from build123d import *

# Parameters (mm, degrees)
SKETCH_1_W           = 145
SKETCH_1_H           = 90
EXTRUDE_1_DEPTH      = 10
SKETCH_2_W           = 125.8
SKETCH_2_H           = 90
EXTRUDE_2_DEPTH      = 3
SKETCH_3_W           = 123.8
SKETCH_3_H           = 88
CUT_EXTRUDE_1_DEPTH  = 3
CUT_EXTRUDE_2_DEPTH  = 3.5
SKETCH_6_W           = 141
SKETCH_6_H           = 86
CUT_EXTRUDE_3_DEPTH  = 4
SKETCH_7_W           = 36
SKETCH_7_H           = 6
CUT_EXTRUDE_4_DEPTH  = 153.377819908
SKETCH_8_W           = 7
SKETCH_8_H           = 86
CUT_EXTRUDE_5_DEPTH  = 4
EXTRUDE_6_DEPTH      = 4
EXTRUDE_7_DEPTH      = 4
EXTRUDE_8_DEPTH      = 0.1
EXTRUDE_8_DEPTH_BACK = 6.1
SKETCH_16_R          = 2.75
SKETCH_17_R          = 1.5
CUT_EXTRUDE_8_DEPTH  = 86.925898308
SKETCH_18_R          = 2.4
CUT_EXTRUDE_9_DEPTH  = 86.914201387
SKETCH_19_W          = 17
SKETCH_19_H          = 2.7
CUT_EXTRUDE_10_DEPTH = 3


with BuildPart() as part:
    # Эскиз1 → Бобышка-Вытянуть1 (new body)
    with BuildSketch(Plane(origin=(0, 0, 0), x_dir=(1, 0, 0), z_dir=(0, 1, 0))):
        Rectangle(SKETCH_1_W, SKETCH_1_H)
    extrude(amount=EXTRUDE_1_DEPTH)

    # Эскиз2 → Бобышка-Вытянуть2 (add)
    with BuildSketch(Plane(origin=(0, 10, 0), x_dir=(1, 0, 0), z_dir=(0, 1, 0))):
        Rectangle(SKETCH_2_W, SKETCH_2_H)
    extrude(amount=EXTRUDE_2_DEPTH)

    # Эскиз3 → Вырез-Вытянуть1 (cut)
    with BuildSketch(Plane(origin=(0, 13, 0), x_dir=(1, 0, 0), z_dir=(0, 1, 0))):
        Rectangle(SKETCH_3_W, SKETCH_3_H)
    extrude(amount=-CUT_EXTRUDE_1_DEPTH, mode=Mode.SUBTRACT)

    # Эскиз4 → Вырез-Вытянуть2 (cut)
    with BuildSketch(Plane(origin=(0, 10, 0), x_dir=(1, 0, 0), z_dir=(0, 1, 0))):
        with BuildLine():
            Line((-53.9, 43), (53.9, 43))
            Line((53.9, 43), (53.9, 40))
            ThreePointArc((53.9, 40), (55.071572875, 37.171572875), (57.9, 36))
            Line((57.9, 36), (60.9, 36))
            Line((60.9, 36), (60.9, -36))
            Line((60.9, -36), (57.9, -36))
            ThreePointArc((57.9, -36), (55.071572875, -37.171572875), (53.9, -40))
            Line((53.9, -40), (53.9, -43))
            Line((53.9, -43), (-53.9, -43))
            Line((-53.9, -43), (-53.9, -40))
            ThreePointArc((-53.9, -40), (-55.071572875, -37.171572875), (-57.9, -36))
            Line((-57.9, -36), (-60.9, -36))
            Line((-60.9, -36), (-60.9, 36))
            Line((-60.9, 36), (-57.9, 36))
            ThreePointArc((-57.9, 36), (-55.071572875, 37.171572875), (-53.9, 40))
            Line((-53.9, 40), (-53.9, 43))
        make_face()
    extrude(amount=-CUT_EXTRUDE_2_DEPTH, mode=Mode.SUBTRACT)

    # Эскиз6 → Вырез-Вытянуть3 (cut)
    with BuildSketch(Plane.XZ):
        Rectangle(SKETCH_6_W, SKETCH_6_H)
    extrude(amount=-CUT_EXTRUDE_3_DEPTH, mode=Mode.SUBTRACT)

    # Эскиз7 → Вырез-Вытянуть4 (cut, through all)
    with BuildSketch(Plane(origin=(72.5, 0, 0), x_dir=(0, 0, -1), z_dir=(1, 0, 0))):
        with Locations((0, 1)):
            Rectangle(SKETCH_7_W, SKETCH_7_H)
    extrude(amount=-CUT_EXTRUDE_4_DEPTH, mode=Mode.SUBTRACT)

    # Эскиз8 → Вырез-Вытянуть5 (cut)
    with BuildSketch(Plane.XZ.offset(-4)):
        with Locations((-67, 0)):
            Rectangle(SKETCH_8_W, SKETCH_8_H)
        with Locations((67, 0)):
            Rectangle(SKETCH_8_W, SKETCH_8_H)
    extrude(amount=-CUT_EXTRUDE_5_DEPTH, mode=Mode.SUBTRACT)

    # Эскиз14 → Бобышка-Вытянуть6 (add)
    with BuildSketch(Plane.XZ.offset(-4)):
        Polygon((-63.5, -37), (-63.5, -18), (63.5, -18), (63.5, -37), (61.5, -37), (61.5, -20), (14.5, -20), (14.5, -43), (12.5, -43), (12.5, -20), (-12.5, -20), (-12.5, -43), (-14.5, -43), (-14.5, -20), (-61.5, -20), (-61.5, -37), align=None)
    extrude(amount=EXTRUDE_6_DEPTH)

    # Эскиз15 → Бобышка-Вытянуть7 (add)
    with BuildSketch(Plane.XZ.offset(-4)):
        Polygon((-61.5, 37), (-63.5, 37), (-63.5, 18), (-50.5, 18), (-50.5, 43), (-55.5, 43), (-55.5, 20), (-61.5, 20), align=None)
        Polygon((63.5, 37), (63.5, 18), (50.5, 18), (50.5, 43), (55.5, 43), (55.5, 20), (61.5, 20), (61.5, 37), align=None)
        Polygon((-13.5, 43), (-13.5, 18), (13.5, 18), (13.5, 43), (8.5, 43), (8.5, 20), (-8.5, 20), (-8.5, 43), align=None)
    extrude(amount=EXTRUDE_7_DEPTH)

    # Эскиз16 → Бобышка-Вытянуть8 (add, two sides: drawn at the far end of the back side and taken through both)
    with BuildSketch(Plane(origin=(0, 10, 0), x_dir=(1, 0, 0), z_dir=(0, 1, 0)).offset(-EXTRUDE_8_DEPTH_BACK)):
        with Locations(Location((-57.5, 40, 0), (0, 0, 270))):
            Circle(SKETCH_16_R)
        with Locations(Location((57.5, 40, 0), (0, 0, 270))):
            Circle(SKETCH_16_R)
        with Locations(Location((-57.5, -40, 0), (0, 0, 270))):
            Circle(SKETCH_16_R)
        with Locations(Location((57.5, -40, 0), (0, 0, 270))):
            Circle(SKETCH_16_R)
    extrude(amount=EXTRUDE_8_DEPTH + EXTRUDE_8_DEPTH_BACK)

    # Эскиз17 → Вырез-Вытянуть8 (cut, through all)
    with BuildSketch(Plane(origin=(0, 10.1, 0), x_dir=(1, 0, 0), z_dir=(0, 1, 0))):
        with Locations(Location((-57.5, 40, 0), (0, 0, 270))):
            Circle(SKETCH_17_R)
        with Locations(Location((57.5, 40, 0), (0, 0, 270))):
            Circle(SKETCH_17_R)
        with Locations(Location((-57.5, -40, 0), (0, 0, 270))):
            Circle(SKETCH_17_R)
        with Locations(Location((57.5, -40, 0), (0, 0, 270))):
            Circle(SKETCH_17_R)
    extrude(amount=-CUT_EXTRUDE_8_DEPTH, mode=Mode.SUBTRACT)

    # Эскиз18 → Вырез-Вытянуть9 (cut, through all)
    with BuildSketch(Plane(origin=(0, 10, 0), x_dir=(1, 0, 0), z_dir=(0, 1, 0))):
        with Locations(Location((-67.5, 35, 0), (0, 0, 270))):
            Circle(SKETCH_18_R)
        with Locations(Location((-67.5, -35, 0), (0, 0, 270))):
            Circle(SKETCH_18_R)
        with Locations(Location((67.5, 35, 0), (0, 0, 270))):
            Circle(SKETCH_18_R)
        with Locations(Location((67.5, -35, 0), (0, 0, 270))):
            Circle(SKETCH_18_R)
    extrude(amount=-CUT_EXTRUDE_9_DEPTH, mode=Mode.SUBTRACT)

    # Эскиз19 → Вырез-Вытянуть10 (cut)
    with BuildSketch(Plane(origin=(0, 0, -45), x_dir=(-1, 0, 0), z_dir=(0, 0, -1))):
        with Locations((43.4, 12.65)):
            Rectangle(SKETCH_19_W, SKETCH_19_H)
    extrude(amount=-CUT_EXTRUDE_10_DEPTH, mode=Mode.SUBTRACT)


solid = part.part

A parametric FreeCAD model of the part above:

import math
import FreeCAD as App
import Part
import Sketcher
Q = App.Units.Quantity


def add_polygon(sketch, points):
    """Adds a closed chain of lines whose ends are joined by coincident constraints."""
    first, n = sketch.GeometryCount, len(points)
    for a, b in zip(points, points[1:] + points[:1]):
        sketch.addGeometry(Part.LineSegment(App.Vector(*a, 0), App.Vector(*b, 0)), False)
    for i in range(n):
        sketch.addConstraint(Sketcher.Constraint("Coincident", first + i, 2, first + (i + 1) % n, 1))

doc = App.newDocument("Part")
body = doc.addObject("PartDesign::Body", "Body")

sketch1 = body.newObject("Sketcher::SketchObject", "Sketch")
sketch1.AttachmentSupport = (doc.getObject("XZ_Plane"), [""])
sketch1.MapMode = "FlatFace"
add_polygon(sketch1, [(-72.5, -45), (-72.5, 45), (72.5, 45), (72.5, -45)])
sketch1.addConstraint([
    Sketcher.Constraint("Vertical", 0),
    Sketcher.Constraint("Horizontal", 1),
    Sketcher.Constraint("Vertical", 2),
    Sketcher.Constraint("Horizontal", 3),
    Sketcher.Constraint("Symmetric", 0, 2, 2, 2, -1, 1),
    Sketcher.Constraint("DistanceX", 1, 1, 1, 2, Q("145 mm")),
    Sketcher.Constraint("DistanceY", 0, 1, 0, 2, Q("90 mm")),
])
pad1 = body.newObject("PartDesign::Pad", "Pad")
pad1.Profile = sketch1
pad1.Length = 10
pad1.Reversed = True

sketch2 = body.newObject("Sketcher::SketchObject", "Sketch001")
sketch2.AttachmentSupport = (doc.getObject("XZ_Plane"), [""])
sketch2.MapMode = "FlatFace"
sketch2.AttachmentOffset = App.Placement(App.Vector(0, 0, -10), App.Rotation())
add_polygon(sketch2, [(-62.9, -45), (-62.9, 45), (62.9, 45), (62.9, -45)])
sketch2.addConstraint([
    Sketcher.Constraint("Vertical", 0),
    Sketcher.Constraint("Horizontal", 1),
    Sketcher.Constraint("Vertical", 2),
    Sketcher.Constraint("Horizontal", 3),
    Sketcher.Constraint("Symmetric", 0, 2, 2, 2, -1, 1),
    Sketcher.Constraint("DistanceY", 0, 1, 0, 2, Q("90 mm")),
    Sketcher.Constraint("DistanceX", 1, 1, 1, 2, Q("125.8 mm")),
])
pad2 = body.newObject("PartDesign::Pad", "Pad001")
pad2.Profile = sketch2
pad2.Length = 3
pad2.Reversed = True

sketch3 = body.newObject("Sketcher::SketchObject", "Sketch002")
sketch3.AttachmentSupport = (doc.getObject("XZ_Plane"), [""])
sketch3.MapMode = "FlatFace"
sketch3.AttachmentOffset = App.Placement(App.Vector(0, 0, -13), App.Rotation())
add_polygon(sketch3, [(-61.9, -44), (-61.9, 44), (61.9, 44), (61.9, -44)])
sketch3.addConstraint([
    Sketcher.Constraint("Vertical", 0),
    Sketcher.Constraint("Horizontal", 1),
    Sketcher.Constraint("Vertical", 2),
    Sketcher.Constraint("Horizontal", 3),
    Sketcher.Constraint("Symmetric", 0, 2, 2, 2, -1, 1),
    Sketcher.Constraint("DistanceY", 0, 1, 0, 2, Q("88 mm")),
    Sketcher.Constraint("DistanceX", 1, 1, 1, 2, Q("123.8 mm")),
])
pocket1 = body.newObject("PartDesign::Pocket", "Pocket")
pocket1.Profile = sketch3
pocket1.Length = 3
pocket1.Reversed = True

sketch4 = body.newObject("Sketcher::SketchObject", "Sketch003")
sketch4.AttachmentSupport = (doc.getObject("XZ_Plane"), [""])
sketch4.MapMode = "FlatFace"
sketch4.AttachmentOffset = App.Placement(App.Vector(0, 0, -10), App.Rotation())
sketch4.addGeometry([
    Part.LineSegment(App.Vector(53.9, -43, 0), App.Vector(-53.9, -43, 0)),
    Part.LineSegment(App.Vector(-53.9, -43, 0), App.Vector(-53.9, -40, 0)),
    Part.ArcOfCircle(Part.Circle(App.Vector(-57.9, -40, 0), App.Vector(0, 0, 1), 4), math.radians(0), math.radians(90)),
    Part.LineSegment(App.Vector(-57.9, -36, 0), App.Vector(-60.9, -36, 0)),
    Part.LineSegment(App.Vector(-60.9, -36, 0), App.Vector(-60.9, 36, 0)),
    Part.LineSegment(App.Vector(-60.9, 36, 0), App.Vector(-57.9, 36, 0)),
    Part.ArcOfCircle(Part.Circle(App.Vector(-57.9, 40, 0), App.Vector(0, 0, 1), 4), math.radians(-90), math.radians(0)),
    Part.LineSegment(App.Vector(-53.9, 40, 0), App.Vector(-53.9, 43, 0)),
    Part.LineSegment(App.Vector(-53.9, 43, 0), App.Vector(53.9, 43, 0)),
    Part.LineSegment(App.Vector(53.9, 43, 0), App.Vector(53.9, 40, 0)),
    Part.ArcOfCircle(Part.Circle(App.Vector(57.9, 40, 0), App.Vector(0, 0, 1), 4), math.radians(180), math.radians(270)),
    Part.LineSegment(App.Vector(57.9, 36, 0), App.Vector(60.9, 36, 0)),
    Part.LineSegment(App.Vector(60.9, 36, 0), App.Vector(60.9, -36, 0)),
    Part.LineSegment(App.Vector(60.9, -36, 0), App.Vector(57.9, -36, 0)),
    Part.ArcOfCircle(Part.Circle(App.Vector(57.9, -40, 0), App.Vector(0, 0, 1), 4), math.radians(90), math.radians(180)),
    Part.LineSegment(App.Vector(53.9, -40, 0), App.Vector(53.9, -43, 0)),
], False)
sketch4.addConstraint([
    Sketcher.Constraint("Coincident", 0, 2, 1, 1),
    Sketcher.Constraint("Tangent", 1, 2, 2, 1),
    Sketcher.Constraint("Tangent", 2, 2, 3, 1),
    Sketcher.Constraint("Coincident", 3, 2, 4, 1),
    Sketcher.Constraint("Coincident", 4, 2, 5, 1),
    Sketcher.Constraint("Tangent", 5, 2, 6, 1),
    Sketcher.Constraint("Tangent", 6, 2, 7, 1),
    Sketcher.Constraint("Coincident", 7, 2, 8, 1),
    Sketcher.Constraint("Coincident", 8, 2, 9, 1),
    Sketcher.Constraint("Tangent", 9, 2, 10, 1),
    Sketcher.Constraint("Tangent", 10, 2, 11, 1),
    Sketcher.Constraint("Coincident", 11, 2, 12, 1),
    Sketcher.Constraint("Coincident", 12, 2, 13, 1),
    Sketcher.Constraint("Tangent", 13, 2, 14, 1),
    Sketcher.Constraint("Tangent", 14, 2, 15, 1),
    Sketcher.Constraint("Coincident", 15, 2, 0, 1),
    Sketcher.Constraint("Horizontal", 0),
    Sketcher.Constraint("Vertical", 1),
    Sketcher.Constraint("Horizontal", 3),
    Sketcher.Constraint("Vertical", 4),
    Sketcher.Constraint("Horizontal", 5),
    Sketcher.Constraint("Vertical", 7),
    Sketcher.Constraint("Horizontal", 8),
    Sketcher.Constraint("Vertical", 9),
    Sketcher.Constraint("Horizontal", 11),
    Sketcher.Constraint("Vertical", 12),
    Sketcher.Constraint("Horizontal", 13),
    Sketcher.Constraint("Vertical", 15),
    Sketcher.Constraint("Equal", 2, 6),
    Sketcher.Constraint("Equal", 6, 10),
    Sketcher.Constraint("Equal", 10, 14),
    Sketcher.Constraint("Symmetric", 2, 3, 10, 3, -1, 1),
    Sketcher.Constraint("Symmetric", 6, 3, 14, 3, -1, 1),
    Sketcher.Constraint("Symmetric", 6, 3, 10, 3, -2),
    Sketcher.Constraint("Equal", 5, 11),
    Sketcher.Constraint("Equal", 13, 1),
    Sketcher.Constraint("Equal", 1, 7),
    Sketcher.Constraint("Radius", 2, Q("4 mm")),
    Sketcher.Constraint("DistanceX", 3, 2, 3, 1, Q("3 mm")),
    Sketcher.Constraint("DistanceY", 4, 1, 4, 2, Q("72 mm")),
    Sketcher.Constraint("DistanceX", 0, 2, 0, 1, Q("107.8 mm")),
])
pocket2 = body.newObject("PartDesign::Pocket", "Pocket001")
pocket2.Profile = sketch4
pocket2.Length = 3.5
pocket2.Reversed = True

sketch5 = body.newObject("Sketcher::SketchObject", "Sketch004")
sketch5.AttachmentSupport = (doc.getObject("XZ_Plane"), [""])
sketch5.MapMode = "FlatFace"
add_polygon(sketch5, [(-70.5, 43), (-70.5, -43), (70.5, -43), (70.5, 43)])
sketch5.addConstraint([
    Sketcher.Constraint("Vertical", 0),
    Sketcher.Constraint("Horizontal", 1),
    Sketcher.Constraint("Vertical", 2),
    Sketcher.Constraint("Horizontal", 3),
    Sketcher.Constraint("Symmetric", 0, 2, 2, 2, -1, 1),
    Sketcher.Constraint("DistanceX", 1, 1, 1, 2, Q("141 mm")),
    Sketcher.Constraint("DistanceY", 0, 2, 0, 1, Q("86 mm")),
])
pocket3 = body.newObject("PartDesign::Pocket", "Pocket002")
pocket3.Profile = sketch5
pocket3.Length = 4

sketch6 = body.newObject("Sketcher::SketchObject", "Sketch005")
sketch6.AttachmentSupport = (doc.getObject("YZ_Plane"), [""])
sketch6.MapMode = "FlatFace"
sketch6.AttachmentOffset = App.Placement(App.Vector(0, 0, 72.5), App.Rotation())
add_polygon(sketch6, [(4, 18), (-2, 18), (-2, -18), (4, -18)])
sketch6.addConstraint([
    Sketcher.Constraint("Horizontal", 0),
    Sketcher.Constraint("Vertical", 1),
    Sketcher.Constraint("Horizontal", 2),
    Sketcher.Constraint("Vertical", 3),
    Sketcher.Constraint("DistanceX", 0, 2, 0, 1, Q("6 mm")),
    Sketcher.Constraint("DistanceY", 1, 2, 1, 1, Q("36 mm")),
    Sketcher.Constraint("DistanceX", 0, 2, -1, 1, Q("2 mm")),
    Sketcher.Constraint("DistanceY", -1, 1, 0, 2, Q("18 mm")),
])
pocket4 = body.newObject("PartDesign::Pocket", "Pocket003")
pocket4.Profile = sketch6
pocket4.Type = "ThroughAll"

sketch7 = body.newObject("Sketcher::SketchObject", "Sketch006")
sketch7.AttachmentSupport = (doc.getObject("XZ_Plane"), [""])
sketch7.MapMode = "FlatFace"
sketch7.AttachmentOffset = App.Placement(App.Vector(0, 0, -4), App.Rotation())
add_polygon(sketch7, [(-70.5, 43), (-70.5, -43), (-63.5, -43), (-63.5, 43)])
add_polygon(sketch7, [(63.5, 43), (63.5, -43), (70.5, -43), (70.5, 43)])
sketch7.addConstraint([
    Sketcher.Constraint("Vertical", 0),
    Sketcher.Constraint("Horizontal", 1),
    Sketcher.Constraint("Vertical", 2),
    Sketcher.Constraint("Horizontal", 3),
    Sketcher.Constraint("Vertical", 4),
    Sketcher.Constraint("Horizontal", 5),
    Sketcher.Constraint("Vertical", 6),
    Sketcher.Constraint("Horizontal", 7),
    Sketcher.Constraint("Symmetric", 2, 2, 4, 2, -1, 1),
    Sketcher.Constraint("Symmetric", 0, 2, 6, 2, -1, 1),
    Sketcher.Constraint("Horizontal", 1, 2, 4, 2),
    Sketcher.Constraint("DistanceX", 1, 1, 1, 2, Q("7 mm")),
    Sketcher.Constraint("DistanceY", 0, 2, 0, 1, Q("86 mm")),
    Sketcher.Constraint("DistanceX", 1, 2, 4, 2, Q("127 mm")),
])
pocket5 = body.newObject("PartDesign::Pocket", "Pocket004")
pocket5.Profile = sketch7
pocket5.Length = 4

sketch8 = body.newObject("Sketcher::SketchObject", "Sketch007")
sketch8.AttachmentSupport = (doc.getObject("XZ_Plane"), [""])
sketch8.MapMode = "FlatFace"
sketch8.AttachmentOffset = App.Placement(App.Vector(0, 0, -4), App.Rotation())
add_polygon(sketch8, [(-63.5, -18), (-63.5, -37), (-61.5, -37), (-61.5, -20), (-14.5, -20), (-14.5, -43), (-12.5, -43), (-12.5, -20), (12.5, -20), (12.5, -43), (14.5, -43), (14.5, -20), (61.5, -20), (61.5, -37), (63.5, -37), (63.5, -18)])
sketch8.addConstraint([
    Sketcher.Constraint("Vertical", 0),
    Sketcher.Constraint("Horizontal", 1),
    Sketcher.Constraint("Vertical", 2),
    Sketcher.Constraint("Horizontal", 3),
    Sketcher.Constraint("Vertical", 4),
    Sketcher.Constraint("Horizontal", 5),
    Sketcher.Constraint("Vertical", 6),
    Sketcher.Constraint("Horizontal", 7),
    Sketcher.Constraint("Vertical", 8),
    Sketcher.Constraint("Horizontal", 9),
    Sketcher.Constraint("Vertical", 10),
    Sketcher.Constraint("Horizontal", 11),
    Sketcher.Constraint("Vertical", 12),
    Sketcher.Constraint("Horizontal", 13),
    Sketcher.Constraint("Vertical", 14),
    Sketcher.Constraint("Horizontal", 15),
    Sketcher.Constraint("Symmetric", 5, 2, 8, 2, -2),
    Sketcher.Constraint("Symmetric", 3, 2, 10, 2, -2),
    Sketcher.Constraint("Symmetric", 1, 2, 12, 2, -2),
    Sketcher.Constraint("Horizontal", 3, 2, 6, 2),
    Sketcher.Constraint("Equal", 1, 5),
    Sketcher.Constraint("Equal", 9, 13),
    Sketcher.Constraint("DistanceX", 1, 1, 1, 2, Q("2 mm")),
    Sketcher.Constraint("DistanceX", 3, 1, 3, 2, Q("47 mm")),
    Sketcher.Constraint("DistanceX", 7, 1, 7, 2, Q("25 mm")),
    Sketcher.Constraint("DistanceY", 0, 2, 0, 1, Q("19 mm")),
    Sketcher.Constraint("DistanceY", 2, 1, 2, 2, Q("17 mm")),
    Sketcher.Constraint("DistanceY", 4, 2, 4, 1, Q("23 mm")),
    Sketcher.Constraint("DistanceY", 0, 2, -1, 1, Q("37 mm")),
])
pad3 = body.newObject("PartDesign::Pad", "Pad002")
pad3.Profile = sketch8
pad3.Length = 4

sketch9 = body.newObject("Sketcher::SketchObject", "Sketch008")
sketch9.AttachmentSupport = (doc.getObject("XZ_Plane"), [""])
sketch9.MapMode = "FlatFace"
sketch9.AttachmentOffset = App.Placement(App.Vector(0, 0, -4), App.Rotation())
add_polygon(sketch9, [(-61.5, 37), (-63.5, 37), (-63.5, 18), (-50.5, 18), (-50.5, 43), (-55.5, 43), (-55.5, 20), (-61.5, 20)])
add_polygon(sketch9, [(63.5, 18), (63.5, 37), (61.5, 37), (61.5, 20), (55.5, 20), (55.5, 43), (50.5, 43), (50.5, 18)])
add_polygon(sketch9, [(-13.5, 43), (-13.5, 18), (13.5, 18), (13.5, 43), (8.5, 43), (8.5, 20), (-8.5, 20), (-8.5, 43)])
sketch9.addConstraint([
    Sketcher.Constraint("Horizontal", 0),
    Sketcher.Constraint("Vertical", 1),
    Sketcher.Constraint("Horizontal", 2),
    Sketcher.Constraint("Vertical", 3),
    Sketcher.Constraint("Horizontal", 4),
    Sketcher.Constraint("Vertical", 5),
    Sketcher.Constraint("Horizontal", 6),
    Sketcher.Constraint("Vertical", 7),
    Sketcher.Constraint("Vertical", 8),
    Sketcher.Constraint("Horizontal", 9),
    Sketcher.Constraint("Vertical", 10),
    Sketcher.Constraint("Horizontal", 11),
    Sketcher.Constraint("Vertical", 12),
    Sketcher.Constraint("Horizontal", 13),
    Sketcher.Constraint("Vertical", 14),
    Sketcher.Constraint("Horizontal", 15),
    Sketcher.Constraint("Vertical", 16),
    Sketcher.Constraint("Horizontal", 17),
    Sketcher.Constraint("Vertical", 18),
    Sketcher.Constraint("Horizontal", 19),
    Sketcher.Constraint("Vertical", 20),
    Sketcher.Constraint("Horizontal", 21),
    Sketcher.Constraint("Vertical", 22),
    Sketcher.Constraint("Horizontal", 23),
    Sketcher.Constraint("Symmetric", 0, 2, 8, 2, -2),
    Sketcher.Constraint("Symmetric", 6, 2, 10, 2, -2),
    Sketcher.Constraint("Symmetric", 4, 2, 12, 2, -2),
    Sketcher.Constraint("Symmetric", 2, 2, 14, 2, -2),
    Sketcher.Constraint("Symmetric", 19, 2, 22, 2, -2),
    Sketcher.Constraint("Horizontal", 15, 2, 16, 2),
    Sketcher.Constraint("Horizontal", 13, 2, 18, 2),
    Sketcher.Constraint("Horizontal", 11, 2, 20, 2),
    Sketcher.Constraint("Equal", 13, 19),
    Sketcher.Constraint("Equal", 19, 23),
    Sketcher.Constraint("Equal", 21, 7),
    Sketcher.Constraint("DistanceX", 0, 2, 0, 1, Q("2 mm")),
    Sketcher.Constraint("DistanceX", 2, 1, 2, 2, Q("13 mm")),
    Sketcher.Constraint("DistanceX", 4, 2, 4, 1, Q("5 mm")),
    Sketcher.Constraint("DistanceX", 17, 1, 17, 2, Q("27 mm")),
    Sketcher.Constraint("DistanceY", 1, 2, 1, 1, Q("19 mm")),
    Sketcher.Constraint("DistanceY", 3, 1, 3, 2, Q("25 mm")),
    Sketcher.Constraint("DistanceY", -1, 1, 0, 2, Q("37 mm")),
    Sketcher.Constraint("DistanceX", 3, 2, 8, 2, Q("114 mm")),
])
pad4 = body.newObject("PartDesign::Pad", "Pad003")
pad4.Profile = sketch9
pad4.Length = 4

sketch10 = body.newObject("Sketcher::SketchObject", "Sketch009")
sketch10.AttachmentSupport = (doc.getObject("XZ_Plane"), [""])
sketch10.MapMode = "FlatFace"
sketch10.AttachmentOffset = App.Placement(App.Vector(0, 0, -10), App.Rotation())
sketch10.addGeometry([
    Part.Circle(App.Vector(-57.5, -40, 0), App.Vector(0, 0, 1), 2.75),
    Part.Circle(App.Vector(57.5, -40, 0), App.Vector(0, 0, 1), 2.75),
    Part.Circle(App.Vector(-57.5, 40, 0), App.Vector(0, 0, 1), 2.75),
    Part.Circle(App.Vector(57.5, 40, 0), App.Vector(0, 0, 1), 2.75),
], False)
sketch10.addConstraint([
    Sketcher.Constraint("Equal", 0, 1),
    Sketcher.Constraint("Equal", 1, 2),
    Sketcher.Constraint("Equal", 2, 3),
    Sketcher.Constraint("Symmetric", 1, 3, 2, 3, -1, 1),
    Sketcher.Constraint("Symmetric", 0, 3, 3, 3, -1, 1),
    Sketcher.Constraint("Symmetric", 0, 3, 1, 3, -2),
    Sketcher.Constraint("Diameter", 0, Q("5.5 mm")),
    Sketcher.Constraint("DistanceY", 0, 3, -1, 1, Q("40 mm")),
    Sketcher.Constraint("DistanceX", 0, 3, 1, 3, Q("115 mm")),
])
pad5 = body.newObject("PartDesign::Pad", "Pad004")
pad5.Profile = sketch10
pad5.Type = "TwoLengths"
pad5.Length = 0.1
pad5.Length2 = 6.1
pad5.Reversed = True

sketch11 = body.newObject("Sketcher::SketchObject", "Sketch010")
sketch11.AttachmentSupport = (doc.getObject("XZ_Plane"), [""])
sketch11.MapMode = "FlatFace"
sketch11.AttachmentOffset = App.Placement(App.Vector(0, 0, -10.1), App.Rotation())
sketch11.addGeometry([
    Part.Circle(App.Vector(-57.5, -40, 0), App.Vector(0, 0, 1), 1.5),
    Part.Circle(App.Vector(57.5, -40, 0), App.Vector(0, 0, 1), 1.5),
    Part.Circle(App.Vector(-57.5, 40, 0), App.Vector(0, 0, 1), 1.5),
    Part.Circle(App.Vector(57.5, 40, 0), App.Vector(0, 0, 1), 1.5),
], False)
sketch11.addConstraint([
    Sketcher.Constraint("Equal", 0, 1),
    Sketcher.Constraint("Equal", 1, 2),
    Sketcher.Constraint("Equal", 2, 3),
    Sketcher.Constraint("Symmetric", 1, 3, 2, 3, -1, 1),
    Sketcher.Constraint("Symmetric", 0, 3, 3, 3, -1, 1),
    Sketcher.Constraint("Symmetric", 0, 3, 1, 3, -2),
    Sketcher.Constraint("Diameter", 0, Q("3 mm")),
    Sketcher.Constraint("DistanceY", 0, 3, -1, 1, Q("40 mm")),
    Sketcher.Constraint("DistanceX", 0, 3, 1, 3, Q("115 mm")),
])
pocket6 = body.newObject("PartDesign::Pocket", "Pocket005")
pocket6.Profile = sketch11
pocket6.Type = "ThroughAll"
pocket6.Reversed = True

sketch12 = body.newObject("Sketcher::SketchObject", "Sketch011")
sketch12.AttachmentSupport = (doc.getObject("XZ_Plane"), [""])
sketch12.MapMode = "FlatFace"
sketch12.AttachmentOffset = App.Placement(App.Vector(0, 0, -10), App.Rotation())
sketch12.addGeometry([
    Part.Circle(App.Vector(-67.5, -35, 0), App.Vector(0, 0, 1), 2.4),
    Part.Circle(App.Vector(-67.5, 35, 0), App.Vector(0, 0, 1), 2.4),
    Part.Circle(App.Vector(67.5, -35, 0), App.Vector(0, 0, 1), 2.4),
    Part.Circle(App.Vector(67.5, 35, 0), App.Vector(0, 0, 1), 2.4),
], False)
sketch12.addConstraint([
    Sketcher.Constraint("Equal", 0, 1),
    Sketcher.Constraint("Equal", 1, 2),
    Sketcher.Constraint("Equal", 2, 3),
    Sketcher.Constraint("Symmetric", 1, 3, 2, 3, -1, 1),
    Sketcher.Constraint("Symmetric", 0, 3, 3, 3, -1, 1),
    Sketcher.Constraint("Symmetric", 0, 3, 2, 3, -2),
    Sketcher.Constraint("Diameter", 0, Q("4.8 mm")),
    Sketcher.Constraint("DistanceY", 0, 3, -1, 1, Q("35 mm")),
    Sketcher.Constraint("DistanceX", 0, 3, 2, 3, Q("135 mm")),
])
pocket7 = body.newObject("PartDesign::Pocket", "Pocket006")
pocket7.Profile = sketch12
pocket7.Type = "ThroughAll"
pocket7.Reversed = True

sketch13 = body.newObject("Sketcher::SketchObject", "Sketch012")
sketch13.AttachmentSupport = (doc.getObject("XY_Plane"), [""])
sketch13.MapMode = "FlatFace"
sketch13.AttachmentOffset = App.Placement(App.Vector(0, 0, -45), App.Rotation())
add_polygon(sketch13, [(-34.9, 14), (-34.9, 11.3), (-51.9, 11.3), (-51.9, 14)])
sketch13.addConstraint([
    Sketcher.Constraint("Vertical", 0),
    Sketcher.Constraint("Horizontal", 1),
    Sketcher.Constraint("Vertical", 2),
    Sketcher.Constraint("Horizontal", 3),
    Sketcher.Constraint("DistanceX", 1, 2, 1, 1, Q("17 mm")),
    Sketcher.Constraint("DistanceY", 0, 2, 0, 1, Q("2.7 mm")),
    Sketcher.Constraint("DistanceY", -1, 1, 2, 2, Q("14 mm")),
    Sketcher.Constraint("DistanceX", 0, 2, -1, 1, Q("34.9 mm")),
])
pocket8 = body.newObject("PartDesign::Pocket", "Pocket007")
pocket8.Profile = sketch13
pocket8.Length = 3
pocket8.Reversed = True

doc.recompute()
